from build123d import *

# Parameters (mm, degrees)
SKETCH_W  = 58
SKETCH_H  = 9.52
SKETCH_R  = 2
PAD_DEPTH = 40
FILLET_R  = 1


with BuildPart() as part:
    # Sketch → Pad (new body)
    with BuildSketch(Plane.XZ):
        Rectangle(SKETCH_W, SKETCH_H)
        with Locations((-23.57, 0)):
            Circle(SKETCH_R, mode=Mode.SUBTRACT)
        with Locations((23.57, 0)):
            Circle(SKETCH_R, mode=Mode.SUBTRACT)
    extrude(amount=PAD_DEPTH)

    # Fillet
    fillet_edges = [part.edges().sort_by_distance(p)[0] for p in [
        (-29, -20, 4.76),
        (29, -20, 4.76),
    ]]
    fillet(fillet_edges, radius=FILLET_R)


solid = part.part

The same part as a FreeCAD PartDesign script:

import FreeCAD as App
import Part
import Sketcher


def edges_at(feature, points):
    """Names of the edges that pass closest to the given points."""
    edges = feature.Shape.Edges
    near = lambda p: min(range(len(edges)), key=lambda i: edges[i].distToShape(Part.Vertex(*p))[0])
    return sorted({f"Edge{near(p) + 1}" for p in points})

doc = App.newDocument("Part")
params = doc.addObject("Spreadsheet::Sheet", "Params")
for row, (alias, value) in enumerate([
    ("sketch1_diameter", "4 mm"),
    ("sketch1_width", "58 mm"),
    ("sketch1_height", "9.52 mm"),
    ("pad1_length", "40 mm"),
    ("fillet_radius", "1 mm"),
], start=1):
    params.set(f"A{row}", alias)
    params.set(f"B{row}", "=" + value)
    params.setAlias(f"B{row}", alias)

body = doc.addObject("PartDesign::Body", "Body")

sketch1 = doc.addObject("Sketcher::SketchObject", "Sketch")
body.addObject(sketch1)
sketch1.AttachmentSupport = (doc.XZ_Plane, [""])
sketch1.MapMode = "FlatFace"
sketch1.addGeometry(Part.LineSegment(App.Vector(-29, 4.8, 0), App.Vector(-29, -4.8, 0)), False)
sketch1.addGeometry(Part.LineSegment(App.Vector(-29, -4.8, 0), App.Vector(29, -4.8, 0)), False)
sketch1.addGeometry(Part.LineSegment(App.Vector(29, -4.8, 0), App.Vector(29, 4.8, 0)), False)
sketch1.addGeometry(Part.LineSegment(App.Vector(29, 4.8, 0), App.Vector(-29, 4.8, 0)), False)
sketch1.addGeometry(Part.Circle(App.Vector(-23.6, 0, 0), App.Vector(0, 0, 1), 2), False)
sketch1.addGeometry(Part.Circle(App.Vector(23.6, 0, 0), App.Vector(0, 0, 1), 2), False)
sketch1.addConstraint(Sketcher.Constraint("Coincident", 0, 2, 1, 1))
sketch1.addConstraint(Sketcher.Constraint("Coincident", 1, 2, 2, 1))
sketch1.addConstraint(Sketcher.Constraint("Coincident", 2, 2, 3, 1))
sketch1.addConstraint(Sketcher.Constraint("Coincident", 3, 2, 0, 1))
sketch1.addConstraint(Sketcher.Constraint("Vertical", 0))
sketch1.addConstraint(Sketcher.Constraint("Horizontal", 1))
sketch1.addConstraint(Sketcher.Constraint("Vertical", 2))
sketch1.addConstraint(Sketcher.Constraint("Horizontal", 3))
sketch1.addConstraint(Sketcher.Constraint("Equal", 4, 5))
sketch1.addConstraint(Sketcher.Constraint("Symmetric", 4, 3, 5, 3, -1, 1))
sketch1.addConstraint(Sketcher.Constraint("Symmetric", 0, 2, 2, 2, -1, 1))
sketch1.addConstraint(Sketcher.Constraint("PointOnObject", 4, 3, -1))
sketch1.addConstraint(Sketcher.Constraint("Diameter", 4, 4.0))
sketch1.addConstraint(Sketcher.Constraint("DistanceX", 1, 1, 1, 2, 58.0))
sketch1.addConstraint(Sketcher.Constraint("DistanceY", 0, 2, 0, 1, 9.52))
sketch1.addConstraint(Sketcher.Constraint("DistanceX", 4, 3, -1, 1, 23.57))
sketch1.setExpression("Constraints[12]", "Params.sketch1_diameter")
sketch1.setExpression("Constraints[13]", "Params.sketch1_width")
sketch1.setExpression("Constraints[14]", "Params.sketch1_height")
pad1 = doc.addObject("PartDesign::Pad", "Pad")
body.addObject(pad1)
pad1.Profile = sketch1
pad1.setExpression("Length", "Params.pad1_length")
doc.recompute()

fillet = doc.addObject("PartDesign::Fillet", "Fillet")
body.addObject(fillet)
fillet.Base = (pad1, edges_at(pad1, [(-29, -20, 4.76), (29, -20, 4.76)]))
fillet.setExpression("Radius", "Params.fillet_radius")

doc.recompute()
